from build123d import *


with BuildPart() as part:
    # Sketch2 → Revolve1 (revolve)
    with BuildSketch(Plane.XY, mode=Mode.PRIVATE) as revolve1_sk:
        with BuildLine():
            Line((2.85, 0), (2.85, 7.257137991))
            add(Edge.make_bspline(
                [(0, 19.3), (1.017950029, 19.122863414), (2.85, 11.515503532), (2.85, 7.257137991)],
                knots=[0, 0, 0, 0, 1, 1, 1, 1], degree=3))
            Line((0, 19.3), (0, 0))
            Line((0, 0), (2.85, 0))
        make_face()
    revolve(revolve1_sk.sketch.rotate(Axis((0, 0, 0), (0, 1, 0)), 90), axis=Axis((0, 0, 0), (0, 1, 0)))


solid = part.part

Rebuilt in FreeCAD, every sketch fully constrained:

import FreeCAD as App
import Part
import Sketcher
from FreeCAD import Vector

doc = App.newDocument("Part")
params = doc.addObject("Spreadsheet::Sheet", "Params")
for row, (alias, value) in enumerate([
    ("revolution_angle", "360 deg"),
], start=1):
    params.set(f"A{row}", alias)
    params.set(f"B{row}", "=" + value)
    params.setAlias(f"B{row}", alias)

body = doc.addObject("PartDesign::Body", "Body")

# Sketch on XY plane
sketch1 = doc.addObject("Sketcher::SketchObject", "Sketch")
body.addObject(sketch1)
sketch1.AttachmentSupport = (doc.XY_Plane, [""])
sketch1.MapMode = "FlatFace"
sketch1.addGeometry(Part.LineSegment(Vector(2.85, 0, 0), Vector(2.85, 7.257138, 0)), False)
sketch1.addGeometry(Part.BSplineCurve([Vector(0, 19.3, 0), Vector(1.01795, 19.122863, 0), Vector(2.85, 11.515504, 0), Vector(2.85, 7.257138, 0)], [4, 4], [0, 1], False, 3, [1, 1, 1, 1], False), False)
sketch1.addGeometry(Part.LineSegment(Vector(0, 19.3, 0), Vector(0, 0, 0)), False)
sketch1.addGeometry(Part.LineSegment(Vector(0, 0, 0), Vector(2.85, 0, 0)), False)
sketch1.addConstraint(Sketcher.Constraint("Block", 1))
sketch1.addConstraint(Sketcher.Constraint("Coincident", 0, 2, 1, 2))
sketch1.addConstraint(Sketcher.Constraint("Coincident", 1, 1, 2, 1))
sketch1.addConstraint(Sketcher.Constraint("Coincident", 2, 2, 3, 1))
sketch1.addConstraint(Sketcher.Constraint("Coincident", 3, 2, 0, 1))
sketch1.addConstraint(Sketcher.Constraint("Vertical", 0))
sketch1.addConstraint(Sketcher.Constraint("Vertical", 2))
sketch1.addConstraint(Sketcher.Constraint("Horizontal", 3))
sketch1.addConstraint(Sketcher.Constraint("PointOnObject", 3, 2, -1))
revolution = doc.addObject("PartDesign::Revolution", "Revolution")
body.addObject(revolution)
revolution.Profile = sketch1
revolution.ReferenceAxis = (sketch1, ["V_Axis"])
revolution.setExpression("Angle", "Params.revolution_angle")

doc.recompute()
